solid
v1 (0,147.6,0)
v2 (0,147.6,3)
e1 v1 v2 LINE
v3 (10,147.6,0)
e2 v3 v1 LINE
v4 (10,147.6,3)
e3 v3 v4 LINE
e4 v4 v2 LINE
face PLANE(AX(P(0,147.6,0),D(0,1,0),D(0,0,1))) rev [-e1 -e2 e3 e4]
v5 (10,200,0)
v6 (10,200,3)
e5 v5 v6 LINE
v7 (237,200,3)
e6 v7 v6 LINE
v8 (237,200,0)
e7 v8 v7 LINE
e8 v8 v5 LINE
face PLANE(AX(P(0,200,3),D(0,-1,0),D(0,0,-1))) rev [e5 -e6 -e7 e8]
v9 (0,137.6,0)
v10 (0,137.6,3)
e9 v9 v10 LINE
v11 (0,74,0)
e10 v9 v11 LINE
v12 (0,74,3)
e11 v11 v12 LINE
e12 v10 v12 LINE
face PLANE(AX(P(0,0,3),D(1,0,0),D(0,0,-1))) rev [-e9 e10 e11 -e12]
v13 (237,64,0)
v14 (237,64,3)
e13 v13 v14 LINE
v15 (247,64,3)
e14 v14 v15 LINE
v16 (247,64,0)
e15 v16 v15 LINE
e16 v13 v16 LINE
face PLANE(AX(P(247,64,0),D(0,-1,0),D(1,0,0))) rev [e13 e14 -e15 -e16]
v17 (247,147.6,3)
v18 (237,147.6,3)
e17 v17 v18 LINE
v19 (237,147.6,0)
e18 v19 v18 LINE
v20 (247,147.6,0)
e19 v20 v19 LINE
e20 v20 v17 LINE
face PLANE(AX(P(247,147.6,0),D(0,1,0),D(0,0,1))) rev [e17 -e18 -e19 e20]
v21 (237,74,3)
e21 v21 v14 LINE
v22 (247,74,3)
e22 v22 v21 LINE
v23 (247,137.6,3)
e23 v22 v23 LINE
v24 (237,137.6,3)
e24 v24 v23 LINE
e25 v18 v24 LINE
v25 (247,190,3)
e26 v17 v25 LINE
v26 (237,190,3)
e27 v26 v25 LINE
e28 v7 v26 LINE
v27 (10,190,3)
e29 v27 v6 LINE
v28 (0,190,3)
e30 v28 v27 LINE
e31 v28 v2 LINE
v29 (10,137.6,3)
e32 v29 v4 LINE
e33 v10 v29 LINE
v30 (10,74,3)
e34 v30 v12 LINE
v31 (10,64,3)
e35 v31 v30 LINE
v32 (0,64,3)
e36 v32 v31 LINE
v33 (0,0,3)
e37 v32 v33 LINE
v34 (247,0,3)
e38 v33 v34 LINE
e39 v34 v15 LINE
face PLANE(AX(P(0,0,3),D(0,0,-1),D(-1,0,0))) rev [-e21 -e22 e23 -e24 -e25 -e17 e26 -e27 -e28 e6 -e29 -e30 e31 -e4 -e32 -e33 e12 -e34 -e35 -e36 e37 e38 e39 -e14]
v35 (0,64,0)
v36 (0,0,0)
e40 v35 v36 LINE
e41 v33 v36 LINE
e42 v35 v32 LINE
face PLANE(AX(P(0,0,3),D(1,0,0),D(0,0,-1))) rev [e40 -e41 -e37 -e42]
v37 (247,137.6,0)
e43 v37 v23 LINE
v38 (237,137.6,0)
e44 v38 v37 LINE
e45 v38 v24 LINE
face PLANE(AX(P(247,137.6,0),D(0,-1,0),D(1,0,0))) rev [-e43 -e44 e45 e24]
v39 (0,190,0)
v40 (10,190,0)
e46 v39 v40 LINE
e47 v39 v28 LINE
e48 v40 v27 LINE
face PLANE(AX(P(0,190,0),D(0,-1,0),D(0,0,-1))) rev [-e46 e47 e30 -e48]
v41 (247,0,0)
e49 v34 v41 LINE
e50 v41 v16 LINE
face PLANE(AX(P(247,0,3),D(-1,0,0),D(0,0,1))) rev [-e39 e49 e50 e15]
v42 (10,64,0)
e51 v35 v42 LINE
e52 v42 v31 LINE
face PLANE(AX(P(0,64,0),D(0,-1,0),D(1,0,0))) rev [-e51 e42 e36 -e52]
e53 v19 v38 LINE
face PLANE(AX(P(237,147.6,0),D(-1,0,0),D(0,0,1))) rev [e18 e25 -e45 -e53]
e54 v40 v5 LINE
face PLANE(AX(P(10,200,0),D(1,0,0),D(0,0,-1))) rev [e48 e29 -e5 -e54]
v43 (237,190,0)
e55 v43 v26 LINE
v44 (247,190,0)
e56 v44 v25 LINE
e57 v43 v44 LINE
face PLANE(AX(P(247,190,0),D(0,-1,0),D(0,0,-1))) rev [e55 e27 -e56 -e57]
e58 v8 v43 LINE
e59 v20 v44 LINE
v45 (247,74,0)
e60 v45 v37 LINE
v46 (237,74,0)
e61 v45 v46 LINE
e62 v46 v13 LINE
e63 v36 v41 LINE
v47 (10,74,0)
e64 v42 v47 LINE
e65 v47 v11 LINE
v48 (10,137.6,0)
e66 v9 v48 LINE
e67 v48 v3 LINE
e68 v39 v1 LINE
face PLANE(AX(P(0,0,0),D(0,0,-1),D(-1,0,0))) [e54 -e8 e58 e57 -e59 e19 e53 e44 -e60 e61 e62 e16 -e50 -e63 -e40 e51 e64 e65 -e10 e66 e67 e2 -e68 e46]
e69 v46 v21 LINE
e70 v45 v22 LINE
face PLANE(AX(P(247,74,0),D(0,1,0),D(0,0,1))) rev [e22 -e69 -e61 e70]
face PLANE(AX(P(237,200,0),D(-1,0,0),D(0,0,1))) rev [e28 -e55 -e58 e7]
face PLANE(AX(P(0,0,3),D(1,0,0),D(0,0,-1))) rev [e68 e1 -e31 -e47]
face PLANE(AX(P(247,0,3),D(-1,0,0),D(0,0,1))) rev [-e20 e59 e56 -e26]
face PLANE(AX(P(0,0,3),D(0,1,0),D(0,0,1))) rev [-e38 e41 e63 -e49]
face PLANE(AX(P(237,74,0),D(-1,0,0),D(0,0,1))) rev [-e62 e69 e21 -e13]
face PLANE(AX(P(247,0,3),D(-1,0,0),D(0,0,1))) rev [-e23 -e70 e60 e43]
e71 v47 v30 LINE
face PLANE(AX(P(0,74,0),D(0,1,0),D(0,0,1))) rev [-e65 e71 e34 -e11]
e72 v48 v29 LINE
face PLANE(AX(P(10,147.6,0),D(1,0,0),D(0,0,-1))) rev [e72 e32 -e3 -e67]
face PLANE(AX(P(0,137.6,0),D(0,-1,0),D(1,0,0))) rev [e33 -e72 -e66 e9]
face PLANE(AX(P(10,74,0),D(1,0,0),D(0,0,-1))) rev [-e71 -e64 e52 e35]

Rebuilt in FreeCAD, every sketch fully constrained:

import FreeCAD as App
import Part
import Sketcher
from FreeCAD import Vector
Q = App.Units.Quantity


def add_polygon(sketch, points):
    """Adds a closed chain of lines whose ends are joined by coincident constraints."""
    first, n = sketch.GeometryCount, len(points)
    for a, b in zip(points, points[1:] + points[:1]):
        sketch.addGeometry(Part.LineSegment(App.Vector(*a, 0), App.Vector(*b, 0)), False)
    for i in range(n):
        sketch.addConstraint(Sketcher.Constraint("Coincident", first + i, 2, first + (i + 1) % n, 1))

doc = App.newDocument("Part")
body = doc.addObject("PartDesign::Body", "Body")

# Sketch on XY plane
sketch1 = body.newObject("Sketcher::SketchObject", "Sketch")
sketch1.AttachmentSupport = (doc.getObject("XY_Plane"), [""])
sketch1.MapMode = "FlatFace"
add_polygon(sketch1, [(0, 200), (0, 0), (247, 0), (247, 200)])  # lines 0-3
sketch1.addConstraint([
    Sketcher.Constraint("Vertical", 0),
    Sketcher.Constraint("Horizontal", 1),
    Sketcher.Constraint("Vertical", 2),
    Sketcher.Constraint("Horizontal", 3),
    Sketcher.Constraint("Coincident", 0, 2, -1, 1),
    Sketcher.Constraint("DistanceX", 1, 1, 1, 2, Q("247 mm")),
    Sketcher.Constraint("DistanceY", 0, 2, 0, 1, Q("200 mm")),
])
pad1 = body.newObject("PartDesign::Pad", "Pad")
pad1.Profile = sketch1
pad1.Length = 3

# Sketch on XY plane
sketch2 = body.newObject("Sketcher::SketchObject", "Sketch001")
sketch2.AttachmentSupport = (doc.getObject("XY_Plane"), [""])
sketch2.MapMode = "FlatFace"
sketch2.AttachmentOffset = App.Placement(Vector(0, 0, 3), App.Rotation())
add_polygon(sketch2, [(237, 200), (237, 190), (247, 190), (247, 200)])  # lines 0-3
add_polygon(sketch2, [(237, 148), (237, 138), (247, 138), (247, 148)])  # lines 4-7
add_polygon(sketch2, [(237, 74), (237, 64), (247, 64), (247, 74)])  # lines 8-11
add_polygon(sketch2, [(0, 74), (0, 64), (10, 64), (10, 74)])  # lines 12-15
add_polygon(sketch2, [(0, 148), (0, 138), (10, 138), (10, 148)])  # lines 16-19
add_polygon(sketch2, [(0, 200), (0, 190), (10, 190), (10, 200)])  # lines 20-23
sketch2.addConstraint([
    Sketcher.Constraint("Vertical", 0),
    Sketcher.Constraint("Horizontal", 1),
    Sketcher.Constraint("Vertical", 2),
    Sketcher.Constraint("Horizontal", 3),
    Sketcher.Constraint("Vertical", 4),
    Sketcher.Constraint("Horizontal", 5),
    Sketcher.Constraint("Vertical", 6),
    Sketcher.Constraint("Horizontal", 7),
    Sketcher.Constraint("Vertical", 8),
    Sketcher.Constraint("Horizontal", 9),
    Sketcher.Constraint("Vertical", 10),
    Sketcher.Constraint("Horizontal", 11),
    Sketcher.Constraint("Vertical", 12),
    Sketcher.Constraint("Horizontal", 13),
    Sketcher.Constraint("Vertical", 14),
    Sketcher.Constraint("Horizontal", 15),
    Sketcher.Constraint("Vertical", 16),
    Sketcher.Constraint("Horizontal", 17),
    Sketcher.Constraint("Vertical", 18),
    Sketcher.Constraint("Horizontal", 19),
    Sketcher.Constraint("Vertical", 20),
    Sketcher.Constraint("Horizontal", 21),
    Sketcher.Constraint("Vertical", 22),
    Sketcher.Constraint("Horizontal", 23),
    Sketcher.Constraint("PointOnObject", 12, 2, -2),
    Sketcher.Constraint("PointOnObject", 16, 2, -2),
    Sketcher.Constraint("PointOnObject", 20, 2, -2),
    Sketcher.Constraint("Horizontal", 9, 2, 12, 2),
    Sketcher.Constraint("Horizontal", 11, 2, 14, 2),
    Sketcher.Constraint("Horizontal", 5, 2, 16, 2),
    Sketcher.Constraint("Horizontal", 7, 2, 18, 2),
    Sketcher.Constraint("Horizontal", 1, 2, 20, 2),
    Sketcher.Constraint("Horizontal", 3, 2, 22, 2),
    Sketcher.Constraint("Vertical", 3, 2, 4, 2),
    Sketcher.Constraint("Vertical", 2, 2, 5, 2),
    Sketcher.Constraint("Vertical", 7, 2, 8, 2),
    Sketcher.Constraint("Vertical", 6, 2, 9, 2),
    Sketcher.Constraint("Vertical", 14, 2, 17, 2),
    Sketcher.Constraint("Vertical", 18, 2, 21, 2),
    Sketcher.Constraint("Equal", 11, 13),
    Sketcher.Constraint("Equal", 23, 0),
    Sketcher.Constraint("Equal", 2, 4),
    Sketcher.Constraint("Equal", 6, 8),
    Sketcher.Constraint("DistanceX", 1, 1, 1, 2, Q("10 mm")),
    Sketcher.Constraint("DistanceX", -1, 1, 0, 2, Q("237 mm")),
    Sketcher.Constraint("DistanceY", -1, 1, 0, 2, Q("190 mm")),
    Sketcher.Constraint("DistanceY", -1, 1, 8, 2, Q("64 mm")),
    Sketcher.Constraint("DistanceY", -1, 1, 4, 2, Q("137.6 mm")),
])
pocket1 = body.newObject("PartDesign::Pocket", "Pocket")
pocket1.Profile = sketch2
pocket1.Type = "ThroughAll"

doc.recompute()
